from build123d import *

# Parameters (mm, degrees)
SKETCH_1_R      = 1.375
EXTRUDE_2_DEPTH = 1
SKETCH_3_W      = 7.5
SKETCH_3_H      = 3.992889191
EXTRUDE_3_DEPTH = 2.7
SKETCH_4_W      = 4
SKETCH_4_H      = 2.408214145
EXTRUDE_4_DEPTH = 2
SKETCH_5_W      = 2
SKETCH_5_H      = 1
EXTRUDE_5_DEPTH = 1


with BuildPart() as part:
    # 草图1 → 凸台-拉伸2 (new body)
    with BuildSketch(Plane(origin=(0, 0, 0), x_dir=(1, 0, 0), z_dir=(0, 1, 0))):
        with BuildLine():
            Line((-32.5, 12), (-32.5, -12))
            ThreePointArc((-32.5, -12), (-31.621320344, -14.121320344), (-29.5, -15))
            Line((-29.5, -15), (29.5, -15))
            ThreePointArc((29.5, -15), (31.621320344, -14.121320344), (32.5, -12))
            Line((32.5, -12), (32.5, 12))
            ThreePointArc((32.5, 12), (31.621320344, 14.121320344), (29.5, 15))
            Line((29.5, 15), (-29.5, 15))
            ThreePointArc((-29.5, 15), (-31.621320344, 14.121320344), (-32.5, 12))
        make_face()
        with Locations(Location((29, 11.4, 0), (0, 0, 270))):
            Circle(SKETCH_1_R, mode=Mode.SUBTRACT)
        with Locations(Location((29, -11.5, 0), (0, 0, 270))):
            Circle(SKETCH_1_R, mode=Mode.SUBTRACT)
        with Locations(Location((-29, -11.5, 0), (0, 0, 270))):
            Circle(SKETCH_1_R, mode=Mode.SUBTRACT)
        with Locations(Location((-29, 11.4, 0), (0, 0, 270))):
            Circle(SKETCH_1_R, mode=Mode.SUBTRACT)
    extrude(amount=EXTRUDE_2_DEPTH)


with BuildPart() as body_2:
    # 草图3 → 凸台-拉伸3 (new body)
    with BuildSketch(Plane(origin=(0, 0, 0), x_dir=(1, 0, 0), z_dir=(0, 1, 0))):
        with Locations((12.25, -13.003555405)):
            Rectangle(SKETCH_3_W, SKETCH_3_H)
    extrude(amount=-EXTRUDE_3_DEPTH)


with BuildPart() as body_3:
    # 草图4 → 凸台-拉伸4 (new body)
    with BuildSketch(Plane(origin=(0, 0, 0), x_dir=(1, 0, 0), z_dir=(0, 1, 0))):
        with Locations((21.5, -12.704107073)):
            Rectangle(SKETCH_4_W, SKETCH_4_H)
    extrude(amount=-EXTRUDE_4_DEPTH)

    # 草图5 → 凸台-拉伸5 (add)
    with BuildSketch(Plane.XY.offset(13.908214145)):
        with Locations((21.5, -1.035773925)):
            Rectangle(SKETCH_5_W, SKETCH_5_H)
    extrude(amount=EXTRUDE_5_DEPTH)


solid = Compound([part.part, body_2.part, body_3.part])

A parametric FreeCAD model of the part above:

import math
import FreeCAD as App
import Part
import Sketcher
from FreeCAD import Vector
Q = App.Units.Quantity


def add_polygon(sketch, points):
    """Adds a closed chain of lines whose ends are joined by coincident constraints."""
    first, n = sketch.GeometryCount, len(points)
    for a, b in zip(points, points[1:] + points[:1]):
        sketch.addGeometry(Part.LineSegment(App.Vector(*a, 0), App.Vector(*b, 0)), False)
    for i in range(n):
        sketch.addConstraint(Sketcher.Constraint("Coincident", first + i, 2, first + (i + 1) % n, 1))

doc = App.newDocument("Part")
params = doc.addObject("Spreadsheet::Sheet", "Params")
for row, (alias, value) in enumerate([
    ("sketch1_radius", "3 mm"),
    ("sketch1_diameter", "2.75 mm"),
    ("sketch1_width", "59 mm"),
    ("sketch1_height", "24 mm"),
    ("pad1_length", "1 mm"),
    ("sketch2_width", "7.5 mm"),
    ("pad2_length", "2.7 mm"),
    ("sketch3_width", "4 mm"),
    ("pad3_length", "2 mm"),
    ("sketch4_width", "2 mm"),
    ("sketch4_height", "1 mm"),
    ("pad4_length", "1 mm"),
], start=1):
    params.set(f"A{row}", alias)
    params.set(f"B{row}", "=" + value)
    params.setAlias(f"B{row}", alias)

body = doc.addObject("PartDesign::Body", "Body")

sketch1 = body.newObject("Sketcher::SketchObject", "Sketch")
sketch1.AttachmentSupport = (doc.getObject("XZ_Plane"), [""])
sketch1.MapMode = "FlatFace"
sketch1.addGeometry([
    Part.LineSegment(Vector(-32.5, -12, 0), Vector(-32.5, 12, 0)),
    Part.ArcOfCircle(Part.Circle(Vector(-29.5, 12, 0), Vector(0, 0, 1), 3), math.radians(90), math.radians(180)),
    Part.LineSegment(Vector(-29.5, 15, 0), Vector(29.5, 15, 0)),
    Part.ArcOfCircle(Part.Circle(Vector(29.5, 12, 0), Vector(0, 0, 1), 3), math.radians(0), math.radians(90)),
    Part.LineSegment(Vector(32.5, 12, 0), Vector(32.5, -12, 0)),
    Part.ArcOfCircle(Part.Circle(Vector(29.5, -12, 0), Vector(0, 0, 1), 3), math.radians(-90), math.radians(0)),
    Part.LineSegment(Vector(29.5, -15, 0), Vector(-29.5, -15, 0)),
    Part.ArcOfCircle(Part.Circle(Vector(-29.5, -12, 0), Vector(0, 0, 1), 3), math.radians(180), math.radians(270)),
    Part.Circle(Vector(-29, 11.5, 0), Vector(0, 0, 1), 1.4),
    Part.Circle(Vector(29, 11.5, 0), Vector(0, 0, 1), 1.4),
    Part.Circle(Vector(-29, -11.4, 0), Vector(0, 0, 1), 1.4),
    Part.Circle(Vector(29, -11.4, 0), Vector(0, 0, 1), 1.4),
], False)
sketch1.addConstraint([
    Sketcher.Constraint("Tangent", 0, 2, 1, 2),
    Sketcher.Constraint("Tangent", 1, 1, 2, 1),
    Sketcher.Constraint("Tangent", 2, 2, 3, 2),
    Sketcher.Constraint("Tangent", 3, 1, 4, 1),
    Sketcher.Constraint("Tangent", 4, 2, 5, 2),
    Sketcher.Constraint("Tangent", 5, 1, 6, 1),
    Sketcher.Constraint("Tangent", 6, 2, 7, 2),
    Sketcher.Constraint("Tangent", 7, 1, 0, 1),
    Sketcher.Constraint("Vertical", 0),
    Sketcher.Constraint("Horizontal", 2),
    Sketcher.Constraint("Vertical", 4),
    Sketcher.Constraint("Horizontal", 6),
    Sketcher.Constraint("Equal", 1, 3),
    Sketcher.Constraint("Equal", 3, 5),
    Sketcher.Constraint("Equal", 5, 7),
    Sketcher.Constraint("Equal", 8, 9),
    Sketcher.Constraint("Equal", 9, 10),
    Sketcher.Constraint("Equal", 10, 11),
    Sketcher.Constraint("Symmetric", 1, 3, 5, 3, -1, 1),
    Sketcher.Constraint("Symmetric", 8, 3, 9, 3, -2),
    Sketcher.Constraint("Symmetric", 10, 3, 11, 3, -2),
    Sketcher.Constraint("Vertical", 8, 3, 10, 3),
    Sketcher.Constraint("Radius", 1, Q("3 mm")),
    Sketcher.Constraint("Diameter", 8, Q("2.75 mm")),
    Sketcher.Constraint("DistanceX", 2, 1, 2, 2, Q("59 mm")),
    Sketcher.Constraint("DistanceY", 0, 1, 0, 2, Q("24 mm")),
    Sketcher.Constraint("DistanceX", 8, 3, -1, 1, Q("29 mm")),
    Sketcher.Constraint("DistanceY", -1, 1, 8, 3, Q("11.5 mm")),
    Sketcher.Constraint("DistanceY", 10, 3, -1, 1, Q("11.4 mm")),
])
sketch1.setExpression("Constraints[22]", "Params.sketch1_radius")
sketch1.setExpression("Constraints[23]", "Params.sketch1_diameter")
sketch1.setExpression("Constraints[24]", "Params.sketch1_width")
sketch1.setExpression("Constraints[25]", "Params.sketch1_height")
pad1 = body.newObject("PartDesign::Pad", "Pad")
pad1.Profile = sketch1
pad1.setExpression("Length", "Params.pad1_length")
pad1.Reversed = True
body2 = doc.addObject("PartDesign::Body", "Body001")

sketch2 = body2.newObject("Sketcher::SketchObject", "Sketch001")
sketch2.AttachmentSupport = (doc.getObject("XZ_Plane001"), [""])
sketch2.MapMode = "FlatFace"
add_polygon(sketch2, [(8.5, 11), (8.5, 15), (16, 15), (16, 11)])
sketch2.addConstraint([
    Sketcher.Constraint("Vertical", 0),
    Sketcher.Constraint("Horizontal", 1),
    Sketcher.Constraint("Vertical", 2),
    Sketcher.Constraint("Horizontal", 3),
    Sketcher.Constraint("DistanceX", 1, 1, 1, 2, Q("7.5 mm")),
    Sketcher.Constraint("DistanceY", -1, 1, 0, 2, Q("15 mm")),
    Sketcher.Constraint("DistanceX", -1, 1, 1, 2, Q("16 mm")),
    Sketcher.Constraint("DistanceY", 0, 1, 0, 2, Q("3.992889 mm")),
])
sketch2.setExpression("Constraints[8]", "Params.sketch2_width")
pad2 = body2.newObject("PartDesign::Pad", "Pad001")
pad2.Profile = sketch2
pad2.setExpression("Length", "Params.pad2_length")
body3 = doc.addObject("PartDesign::Body", "Body002")

sketch3 = body3.newObject("Sketcher::SketchObject", "Sketch002")
sketch3.AttachmentSupport = (doc.getObject("XZ_Plane002"), [""])
sketch3.MapMode = "FlatFace"
add_polygon(sketch3, [(19.5, 11.5), (19.5, 13.9), (23.5, 13.9), (23.5, 11.5)])
sketch3.addConstraint([
    Sketcher.Constraint("Vertical", 0),
    Sketcher.Constraint("Horizontal", 1),
    Sketcher.Constraint("Vertical", 2),
    Sketcher.Constraint("Horizontal", 3),
    Sketcher.Constraint("DistanceX", 1, 1, 1, 2, Q("4 mm")),
    Sketcher.Constraint("DistanceX", -1, 1, 0, 2, Q("19.5 mm")),
    Sketcher.Constraint("DistanceY", -1, 1, 2, 2, Q("11.5 mm")),
    Sketcher.Constraint("DistanceY", 0, 1, 0, 2, Q("2.408214 mm")),
])
sketch3.setExpression("Constraints[8]", "Params.sketch3_width")
pad3 = body3.newObject("PartDesign::Pad", "Pad002")
pad3.Profile = sketch3
pad3.setExpression("Length", "Params.pad3_length")

sketch4 = body3.newObject("Sketcher::SketchObject", "Sketch003")
sketch4.AttachmentSupport = (doc.getObject("XY_Plane002"), [""])
sketch4.MapMode = "FlatFace"
sketch4.AttachmentOffset = App.Placement(Vector(0, 0, 13.908214), App.Rotation())
add_polygon(sketch4, [(20.5, -0.5), (20.5, -1.5), (22.5, -1.5), (22.5, -0.5)])
sketch4.addConstraint([
    Sketcher.Constraint("Vertical", 0),
    Sketcher.Constraint("Horizontal", 1),
    Sketcher.Constraint("Vertical", 2),
    Sketcher.Constraint("Horizontal", 3),
    Sketcher.Constraint("DistanceX", 1, 1, 1, 2, Q("2 mm")),
    Sketcher.Constraint("DistanceY", 0, 2, 0, 1, Q("1 mm")),
    Sketcher.Constraint("DistanceX", -1, 1, 0, 2, Q("20.5 mm")),
    Sketcher.Constraint("DistanceY", 0, 2, -1, 1, Q("1.535774 mm")),
])
sketch4.setExpression("Constraints[8]", "Params.sketch4_width")
sketch4.setExpression("Constraints[9]", "Params.sketch4_height")
pad4 = body3.newObject("PartDesign::Pad", "Pad003")
pad4.Profile = sketch4
pad4.setExpression("Length", "Params.pad4_length")

doc.recompute()
